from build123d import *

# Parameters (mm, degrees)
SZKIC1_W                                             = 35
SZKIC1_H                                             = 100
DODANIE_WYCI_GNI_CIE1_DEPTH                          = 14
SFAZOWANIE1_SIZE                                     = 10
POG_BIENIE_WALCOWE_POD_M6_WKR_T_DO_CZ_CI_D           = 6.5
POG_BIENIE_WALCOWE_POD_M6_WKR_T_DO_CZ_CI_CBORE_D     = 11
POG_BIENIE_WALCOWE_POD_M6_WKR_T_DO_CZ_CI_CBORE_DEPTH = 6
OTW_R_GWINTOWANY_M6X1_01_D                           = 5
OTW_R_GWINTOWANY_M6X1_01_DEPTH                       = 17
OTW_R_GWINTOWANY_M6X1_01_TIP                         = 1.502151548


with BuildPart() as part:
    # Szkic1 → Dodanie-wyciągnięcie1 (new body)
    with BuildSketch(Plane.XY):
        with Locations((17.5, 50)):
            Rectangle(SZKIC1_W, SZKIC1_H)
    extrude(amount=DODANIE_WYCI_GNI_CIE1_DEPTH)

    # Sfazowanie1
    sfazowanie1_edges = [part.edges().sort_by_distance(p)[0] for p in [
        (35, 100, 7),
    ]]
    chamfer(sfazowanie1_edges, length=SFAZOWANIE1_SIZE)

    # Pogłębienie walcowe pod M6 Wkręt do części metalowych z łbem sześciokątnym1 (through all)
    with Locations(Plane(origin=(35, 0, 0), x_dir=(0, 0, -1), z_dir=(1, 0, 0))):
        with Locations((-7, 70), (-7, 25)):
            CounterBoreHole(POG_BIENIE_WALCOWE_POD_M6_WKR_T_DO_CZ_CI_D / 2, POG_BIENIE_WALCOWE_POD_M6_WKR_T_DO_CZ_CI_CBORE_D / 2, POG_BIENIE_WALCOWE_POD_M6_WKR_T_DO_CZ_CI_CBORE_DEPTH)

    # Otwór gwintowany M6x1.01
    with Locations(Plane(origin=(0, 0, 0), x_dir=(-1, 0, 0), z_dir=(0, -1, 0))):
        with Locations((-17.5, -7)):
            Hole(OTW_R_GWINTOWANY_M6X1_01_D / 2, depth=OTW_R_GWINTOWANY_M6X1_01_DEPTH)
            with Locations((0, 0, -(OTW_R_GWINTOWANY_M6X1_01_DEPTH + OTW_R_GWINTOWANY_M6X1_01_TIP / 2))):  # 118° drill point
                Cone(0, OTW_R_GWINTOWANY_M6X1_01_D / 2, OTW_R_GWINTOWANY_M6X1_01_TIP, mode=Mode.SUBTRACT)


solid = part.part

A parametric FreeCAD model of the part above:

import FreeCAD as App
import Part
import Sketcher

V = App.Vector
Q = App.Units.Quantity


def edges_at(feature, points):
    """Names of the edges that pass closest to the given points."""
    edges = feature.Shape.Edges
    near = lambda p: min(range(len(edges)), key=lambda i: edges[i].distToShape(Part.Vertex(*p))[0])
    return sorted({f"Edge{near(p) + 1}" for p in points})

doc = App.newDocument("Part")
body = doc.addObject("PartDesign::Body", "Body")

sketch1 = body.newObject("Sketcher::SketchObject", "Sketch")
sketch1.AttachmentSupport = (doc.getObject("XY_Plane"), [""])
sketch1.MapMode = "FlatFace"
sketch1.addGeometry(Part.LineSegment(V(0, 100, 0), V(0, 0, 0)), False)
sketch1.addGeometry(Part.LineSegment(V(0, 0, 0), V(35, 0, 0)), False)
sketch1.addGeometry(Part.LineSegment(V(35, 0, 0), V(35, 100, 0)), False)
sketch1.addGeometry(Part.LineSegment(V(35, 100, 0), V(0, 100, 0)), False)
sketch1.addConstraint(Sketcher.Constraint("Coincident", 0, 2, 1, 1))
sketch1.addConstraint(Sketcher.Constraint("Coincident", 1, 2, 2, 1))
sketch1.addConstraint(Sketcher.Constraint("Coincident", 2, 2, 3, 1))
sketch1.addConstraint(Sketcher.Constraint("Coincident", 3, 2, 0, 1))
sketch1.addConstraint(Sketcher.Constraint("Vertical", 0))
sketch1.addConstraint(Sketcher.Constraint("Horizontal", 1))
sketch1.addConstraint(Sketcher.Constraint("Vertical", 2))
sketch1.addConstraint(Sketcher.Constraint("Horizontal", 3))
sketch1.addConstraint(Sketcher.Constraint("Coincident", 0, 2, -1, 1))
sketch1.addConstraint(Sketcher.Constraint("DistanceX", 1, 1, 1, 2, Q("35 mm")))
sketch1.addConstraint(Sketcher.Constraint("DistanceY", 0, 2, 0, 1, Q("100 mm")))
pad1 = body.newObject("PartDesign::Pad", "Pad")
pad1.Profile = sketch1
pad1.Length = 14
doc.recompute()

chamfer = body.newObject("PartDesign::Chamfer", "Chamfer")
chamfer.Base = (pad1, edges_at(pad1, [(35, 100, 7)]))
chamfer.Size = 10

sketch2 = body.newObject("Sketcher::SketchObject", "Sketch001")
sketch2.AttachmentSupport = (doc.getObject("YZ_Plane"), [""])
sketch2.MapMode = "FlatFace"
sketch2.AttachmentOffset = App.Placement(V(0, 0, 35), App.Rotation())
sketch2.addGeometry(Part.Circle(V(70, 7, 0), V(0, 0, 1), 3.2), False)
sketch2.addGeometry(Part.Circle(V(25, 7, 0), V(0, 0, 1), 3.2), False)
sketch2.addConstraint(Sketcher.Constraint("Equal", 0, 1))
sketch2.addConstraint(Sketcher.Constraint("Horizontal", 0, 3, 1, 3))
sketch2.addConstraint(Sketcher.Constraint("Diameter", 0, Q("6.5 mm")))
sketch2.addConstraint(Sketcher.Constraint("DistanceX", -1, 1, 0, 3, Q("70 mm")))
sketch2.addConstraint(Sketcher.Constraint("DistanceY", -1, 1, 0, 3, Q("7 mm")))
sketch2.addConstraint(Sketcher.Constraint("DistanceX", -1, 1, 1, 3, Q("25 mm")))
doc.recompute()
hole = body.newObject("PartDesign::Hole", "Hole")
hole.Profile = sketch2
hole.ThreadType = "None"
hole.Diameter = 6.5
hole.DepthType = "ThroughAll"
hole.HoleCutType = "Counterbore"
hole.HoleCutDiameter = 11
hole.HoleCutDepth = 6

sketch3 = body.newObject("Sketcher::SketchObject", "Sketch002")
sketch3.AttachmentSupport = (doc.getObject("XZ_Plane"), [""])
sketch3.MapMode = "FlatFace"
sketch3.addGeometry(Part.Circle(V(17.5, 7, 0), V(0, 0, 1), 2.5), False)
sketch3.addConstraint(Sketcher.Constraint("Diameter", 0, Q("5 mm")))
sketch3.addConstraint(Sketcher.Constraint("DistanceY", -1, 1, 0, 3, Q("7 mm")))
sketch3.addConstraint(Sketcher.Constraint("DistanceX", -1, 1, 0, 3, Q("17.5 mm")))
doc.recompute()
hole2 = body.newObject("PartDesign::Hole", "Hole001")
hole2.Profile = sketch3
hole2.ThreadType = "None"
hole2.Diameter = 5
hole2.DepthType = "Dimension"
hole2.Depth = 17
hole2.DrillPoint = "Angled"
hole2.DrillPointAngle = 118

doc.recompute()
